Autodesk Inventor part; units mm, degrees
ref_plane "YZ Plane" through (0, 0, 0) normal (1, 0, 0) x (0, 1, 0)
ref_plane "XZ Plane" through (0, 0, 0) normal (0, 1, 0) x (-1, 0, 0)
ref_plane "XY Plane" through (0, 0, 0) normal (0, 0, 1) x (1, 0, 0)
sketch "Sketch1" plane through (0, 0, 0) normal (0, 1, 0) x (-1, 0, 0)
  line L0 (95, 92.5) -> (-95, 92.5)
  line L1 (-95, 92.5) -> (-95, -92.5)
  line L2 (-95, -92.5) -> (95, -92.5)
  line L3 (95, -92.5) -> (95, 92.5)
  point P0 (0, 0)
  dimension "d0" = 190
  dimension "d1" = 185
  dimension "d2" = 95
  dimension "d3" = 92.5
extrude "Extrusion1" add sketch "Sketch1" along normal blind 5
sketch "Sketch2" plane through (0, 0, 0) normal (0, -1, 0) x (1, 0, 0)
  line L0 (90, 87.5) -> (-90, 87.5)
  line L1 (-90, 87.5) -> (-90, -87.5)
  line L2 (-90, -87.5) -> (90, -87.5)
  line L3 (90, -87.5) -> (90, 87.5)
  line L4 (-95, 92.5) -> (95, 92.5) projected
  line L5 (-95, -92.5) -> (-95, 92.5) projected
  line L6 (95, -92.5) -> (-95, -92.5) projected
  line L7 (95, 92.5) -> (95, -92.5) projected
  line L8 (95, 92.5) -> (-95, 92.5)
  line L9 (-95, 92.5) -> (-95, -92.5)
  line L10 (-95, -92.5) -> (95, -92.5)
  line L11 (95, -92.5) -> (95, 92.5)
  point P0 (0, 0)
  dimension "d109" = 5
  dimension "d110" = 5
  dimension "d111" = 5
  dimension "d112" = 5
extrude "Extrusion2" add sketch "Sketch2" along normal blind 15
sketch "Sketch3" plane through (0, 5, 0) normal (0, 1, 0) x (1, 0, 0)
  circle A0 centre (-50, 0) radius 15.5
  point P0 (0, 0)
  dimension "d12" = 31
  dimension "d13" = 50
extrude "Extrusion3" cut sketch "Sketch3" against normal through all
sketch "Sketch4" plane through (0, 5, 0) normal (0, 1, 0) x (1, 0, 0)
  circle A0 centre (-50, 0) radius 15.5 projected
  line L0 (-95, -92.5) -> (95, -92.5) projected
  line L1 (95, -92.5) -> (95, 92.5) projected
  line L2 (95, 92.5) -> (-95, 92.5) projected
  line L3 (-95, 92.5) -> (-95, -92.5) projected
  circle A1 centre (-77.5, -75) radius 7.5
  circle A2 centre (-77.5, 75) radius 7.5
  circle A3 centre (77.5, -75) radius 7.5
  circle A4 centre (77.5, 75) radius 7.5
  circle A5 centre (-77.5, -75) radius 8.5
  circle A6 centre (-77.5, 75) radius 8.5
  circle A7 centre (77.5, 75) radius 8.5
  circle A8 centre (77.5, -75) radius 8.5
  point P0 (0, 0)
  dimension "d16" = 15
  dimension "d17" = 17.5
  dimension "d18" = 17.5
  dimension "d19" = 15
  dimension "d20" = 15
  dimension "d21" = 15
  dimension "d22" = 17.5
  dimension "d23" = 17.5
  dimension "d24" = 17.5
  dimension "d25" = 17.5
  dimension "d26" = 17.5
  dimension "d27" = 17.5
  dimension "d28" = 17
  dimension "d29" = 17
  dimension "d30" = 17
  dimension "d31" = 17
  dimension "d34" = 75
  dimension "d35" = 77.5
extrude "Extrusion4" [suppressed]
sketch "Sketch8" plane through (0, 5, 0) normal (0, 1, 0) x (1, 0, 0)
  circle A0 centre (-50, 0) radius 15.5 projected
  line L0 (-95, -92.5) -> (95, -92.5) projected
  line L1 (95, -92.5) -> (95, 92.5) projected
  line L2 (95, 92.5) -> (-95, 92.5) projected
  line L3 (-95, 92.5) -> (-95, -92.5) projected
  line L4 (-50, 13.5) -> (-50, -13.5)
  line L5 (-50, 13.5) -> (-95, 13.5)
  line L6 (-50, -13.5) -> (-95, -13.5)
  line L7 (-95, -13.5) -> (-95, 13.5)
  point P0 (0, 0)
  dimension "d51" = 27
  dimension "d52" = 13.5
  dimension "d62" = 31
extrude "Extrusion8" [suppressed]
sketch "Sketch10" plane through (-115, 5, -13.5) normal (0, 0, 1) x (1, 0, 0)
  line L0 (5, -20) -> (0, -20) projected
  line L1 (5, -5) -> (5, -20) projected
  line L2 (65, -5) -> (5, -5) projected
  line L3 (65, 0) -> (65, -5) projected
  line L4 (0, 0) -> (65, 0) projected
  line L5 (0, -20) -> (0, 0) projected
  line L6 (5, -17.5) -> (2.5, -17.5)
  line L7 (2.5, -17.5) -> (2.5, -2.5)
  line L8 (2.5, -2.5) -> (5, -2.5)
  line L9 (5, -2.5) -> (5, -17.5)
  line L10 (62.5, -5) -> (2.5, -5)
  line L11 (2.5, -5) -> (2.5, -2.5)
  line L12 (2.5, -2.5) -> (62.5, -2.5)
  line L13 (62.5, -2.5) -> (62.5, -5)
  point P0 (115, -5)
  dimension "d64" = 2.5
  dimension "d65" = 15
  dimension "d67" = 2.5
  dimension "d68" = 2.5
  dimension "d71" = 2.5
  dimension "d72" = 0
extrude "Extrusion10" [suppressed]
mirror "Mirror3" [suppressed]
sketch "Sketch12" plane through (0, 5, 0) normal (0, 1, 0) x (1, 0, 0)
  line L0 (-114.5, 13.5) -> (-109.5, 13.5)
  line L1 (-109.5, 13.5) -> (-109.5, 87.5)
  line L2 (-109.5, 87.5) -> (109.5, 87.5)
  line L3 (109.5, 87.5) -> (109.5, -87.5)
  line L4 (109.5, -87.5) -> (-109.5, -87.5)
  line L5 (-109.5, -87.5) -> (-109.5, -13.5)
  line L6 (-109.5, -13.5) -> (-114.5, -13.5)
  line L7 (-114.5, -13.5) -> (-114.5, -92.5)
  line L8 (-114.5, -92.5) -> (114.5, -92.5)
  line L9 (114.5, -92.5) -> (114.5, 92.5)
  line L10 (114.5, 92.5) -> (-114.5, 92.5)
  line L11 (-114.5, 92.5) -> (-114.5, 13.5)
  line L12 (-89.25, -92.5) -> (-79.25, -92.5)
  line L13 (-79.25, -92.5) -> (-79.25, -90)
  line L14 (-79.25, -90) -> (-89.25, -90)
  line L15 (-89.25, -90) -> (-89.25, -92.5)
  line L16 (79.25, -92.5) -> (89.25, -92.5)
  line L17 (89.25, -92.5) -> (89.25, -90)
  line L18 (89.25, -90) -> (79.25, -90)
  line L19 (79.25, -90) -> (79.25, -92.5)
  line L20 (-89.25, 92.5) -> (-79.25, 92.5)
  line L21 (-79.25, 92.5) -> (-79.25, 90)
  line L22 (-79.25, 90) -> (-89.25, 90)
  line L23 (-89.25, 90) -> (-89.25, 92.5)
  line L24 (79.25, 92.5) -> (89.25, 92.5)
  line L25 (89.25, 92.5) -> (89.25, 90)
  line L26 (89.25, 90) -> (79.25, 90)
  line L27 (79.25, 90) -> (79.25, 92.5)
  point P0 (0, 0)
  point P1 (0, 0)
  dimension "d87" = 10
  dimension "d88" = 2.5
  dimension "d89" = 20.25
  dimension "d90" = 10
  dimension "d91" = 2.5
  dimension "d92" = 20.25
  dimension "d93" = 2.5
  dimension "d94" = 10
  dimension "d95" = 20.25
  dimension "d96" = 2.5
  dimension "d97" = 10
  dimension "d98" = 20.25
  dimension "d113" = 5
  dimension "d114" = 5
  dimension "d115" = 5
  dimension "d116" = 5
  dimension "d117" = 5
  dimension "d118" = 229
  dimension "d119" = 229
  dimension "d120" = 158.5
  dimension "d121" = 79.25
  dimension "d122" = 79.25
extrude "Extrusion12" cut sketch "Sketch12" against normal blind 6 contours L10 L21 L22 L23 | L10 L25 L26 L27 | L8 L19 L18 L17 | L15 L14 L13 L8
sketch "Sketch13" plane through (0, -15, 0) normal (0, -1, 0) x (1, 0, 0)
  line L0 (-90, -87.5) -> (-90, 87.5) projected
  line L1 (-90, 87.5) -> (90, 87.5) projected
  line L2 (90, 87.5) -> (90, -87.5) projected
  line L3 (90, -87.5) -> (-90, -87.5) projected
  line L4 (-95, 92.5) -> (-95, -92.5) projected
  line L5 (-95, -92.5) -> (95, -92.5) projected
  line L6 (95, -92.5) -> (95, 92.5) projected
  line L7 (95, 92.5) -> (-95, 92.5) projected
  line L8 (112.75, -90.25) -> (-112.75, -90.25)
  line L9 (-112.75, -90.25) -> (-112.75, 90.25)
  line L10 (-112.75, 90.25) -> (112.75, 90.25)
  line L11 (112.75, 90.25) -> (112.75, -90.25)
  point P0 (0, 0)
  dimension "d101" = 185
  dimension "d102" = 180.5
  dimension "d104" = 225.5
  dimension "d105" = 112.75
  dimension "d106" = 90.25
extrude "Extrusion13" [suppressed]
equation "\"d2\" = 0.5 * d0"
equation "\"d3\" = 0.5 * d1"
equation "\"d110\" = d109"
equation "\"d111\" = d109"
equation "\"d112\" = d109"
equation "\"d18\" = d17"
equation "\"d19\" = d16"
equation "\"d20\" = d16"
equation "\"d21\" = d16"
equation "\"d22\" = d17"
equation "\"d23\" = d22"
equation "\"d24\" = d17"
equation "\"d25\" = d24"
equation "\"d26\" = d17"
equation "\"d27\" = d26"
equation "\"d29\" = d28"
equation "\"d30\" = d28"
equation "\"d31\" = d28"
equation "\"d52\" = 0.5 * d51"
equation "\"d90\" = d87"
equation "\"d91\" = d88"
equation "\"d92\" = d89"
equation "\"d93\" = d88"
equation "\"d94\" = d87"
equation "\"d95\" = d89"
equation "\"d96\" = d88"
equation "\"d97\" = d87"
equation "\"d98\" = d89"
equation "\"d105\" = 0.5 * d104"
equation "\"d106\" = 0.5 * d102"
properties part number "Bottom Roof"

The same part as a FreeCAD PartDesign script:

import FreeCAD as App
import Part
import Sketcher
Q = App.Units.Quantity

doc = App.newDocument("Part")
body = doc.addObject("PartDesign::Body", "Body")

sketch1 = body.newObject("Sketcher::SketchObject", "Sketch")
sketch1.AttachmentSupport = (doc.getObject("XZ_Plane"), [""])
sketch1.MapMode = "FlatFace"
sketch1.addGeometry(Part.LineSegment(App.Vector(-95, -92.5, 0), App.Vector(-95, 92.5, 0)), False)
sketch1.addGeometry(Part.LineSegment(App.Vector(-95, 92.5, 0), App.Vector(95, 92.5, 0)), False)
sketch1.addGeometry(Part.LineSegment(App.Vector(95, 92.5, 0), App.Vector(95, -92.5, 0)), False)
sketch1.addGeometry(Part.LineSegment(App.Vector(95, -92.5, 0), App.Vector(-95, -92.5, 0)), False)
sketch1.addConstraint(Sketcher.Constraint("Coincident", 0, 2, 1, 1))
sketch1.addConstraint(Sketcher.Constraint("Coincident", 1, 2, 2, 1))
sketch1.addConstraint(Sketcher.Constraint("Coincident", 2, 2, 3, 1))
sketch1.addConstraint(Sketcher.Constraint("Coincident", 3, 2, 0, 1))
sketch1.addConstraint(Sketcher.Constraint("Vertical", 0))
sketch1.addConstraint(Sketcher.Constraint("Horizontal", 1))
sketch1.addConstraint(Sketcher.Constraint("Vertical", 2))
sketch1.addConstraint(Sketcher.Constraint("Horizontal", 3))
sketch1.addConstraint(Sketcher.Constraint("Symmetric", 0, 2, 2, 2, -1, 1))
sketch1.addConstraint(Sketcher.Constraint("DistanceX", 1, 1, 1, 2, Q("190 mm")))
sketch1.addConstraint(Sketcher.Constraint("DistanceY", 0, 1, 0, 2, Q("185 mm")))
pad1 = body.newObject("PartDesign::Pad", "Pad")
pad1.Profile = sketch1
pad1.Length = 5
pad1.Reversed = True

sketch2 = body.newObject("Sketcher::SketchObject", "Sketch001")
sketch2.AttachmentSupport = (doc.getObject("XZ_Plane"), [""])
sketch2.MapMode = "FlatFace"
sketch2.addGeometry(Part.LineSegment(App.Vector(95, 92.5, 0), App.Vector(-95, 92.5, 0)), False)
sketch2.addGeometry(Part.LineSegment(App.Vector(-95, 92.5, 0), App.Vector(-95, -92.5, 0)), False)
sketch2.addGeometry(Part.LineSegment(App.Vector(-95, -92.5, 0), App.Vector(95, -92.5, 0)), False)
sketch2.addGeometry(Part.LineSegment(App.Vector(95, -92.5, 0), App.Vector(95, 92.5, 0)), False)
sketch2.addGeometry(Part.LineSegment(App.Vector(-90, 87.5, 0), App.Vector(90, 87.5, 0)), False)
sketch2.addGeometry(Part.LineSegment(App.Vector(90, 87.5, 0), App.Vector(90, -87.5, 0)), False)
sketch2.addGeometry(Part.LineSegment(App.Vector(90, -87.5, 0), App.Vector(-90, -87.5, 0)), False)
sketch2.addGeometry(Part.LineSegment(App.Vector(-90, -87.5, 0), App.Vector(-90, 87.5, 0)), False)
sketch2.addConstraint(Sketcher.Constraint("Coincident", 0, 2, 1, 1))
sketch2.addConstraint(Sketcher.Constraint("Coincident", 1, 2, 2, 1))
sketch2.addConstraint(Sketcher.Constraint("Coincident", 2, 2, 3, 1))
sketch2.addConstraint(Sketcher.Constraint("Coincident", 3, 2, 0, 1))
sketch2.addConstraint(Sketcher.Constraint("Coincident", 4, 2, 5, 1))
sketch2.addConstraint(Sketcher.Constraint("Coincident", 5, 2, 6, 1))
sketch2.addConstraint(Sketcher.Constraint("Coincident", 6, 2, 7, 1))
sketch2.addConstraint(Sketcher.Constraint("Coincident", 7, 2, 4, 1))
sketch2.addConstraint(Sketcher.Constraint("Horizontal", 0))
sketch2.addConstraint(Sketcher.Constraint("Vertical", 1))
sketch2.addConstraint(Sketcher.Constraint("Horizontal", 2))
sketch2.addConstraint(Sketcher.Constraint("Vertical", 3))
sketch2.addConstraint(Sketcher.Constraint("Horizontal", 4))
sketch2.addConstraint(Sketcher.Constraint("Vertical", 5))
sketch2.addConstraint(Sketcher.Constraint("Horizontal", 6))
sketch2.addConstraint(Sketcher.Constraint("Vertical", 7))
sketch2.addConstraint(Sketcher.Constraint("Symmetric", 0, 2, 2, 2, -1, 1))
sketch2.addConstraint(Sketcher.Constraint("Symmetric", 4, 2, 6, 2, -1, 1))
sketch2.addConstraint(Sketcher.Constraint("DistanceX", 4, 2, 3, 2, Q("5 mm")))
sketch2.addConstraint(Sketcher.Constraint("DistanceY", 4, 2, 3, 2, Q("5 mm")))
sketch2.addConstraint(Sketcher.Constraint("DistanceX", 0, 2, 0, 1, Q("190 mm")))
sketch2.addConstraint(Sketcher.Constraint("DistanceY", 1, 2, 1, 1, Q("185 mm")))
pad2 = body.newObject("PartDesign::Pad", "Pad001")
pad2.Profile = sketch2
pad2.Length = 15

sketch3 = body.newObject("Sketcher::SketchObject", "Sketch002")
sketch3.AttachmentSupport = (doc.getObject("XZ_Plane"), [""])
sketch3.MapMode = "FlatFace"
sketch3.AttachmentOffset = App.Placement(App.Vector(0, 0, -5), App.Rotation())
sketch3.addGeometry(Part.Circle(App.Vector(-50, 0, 0), App.Vector(0, 0, 1), 15.5), False)
sketch3.addConstraint(Sketcher.Constraint("PointOnObject", 0, 3, -1))
sketch3.addConstraint(Sketcher.Constraint("Diameter", 0, Q("31 mm")))
sketch3.addConstraint(Sketcher.Constraint("DistanceX", 0, 3, -1, 1, Q("50 mm")))
pocket1 = body.newObject("PartDesign::Pocket", "Pocket")
pocket1.Profile = sketch3
pocket1.Type = "ThroughAll"
pocket1.Reversed = True

sketch4 = body.newObject("Sketcher::SketchObject", "Sketch003")
sketch4.AttachmentSupport = (doc.getObject("XZ_Plane"), [""])
sketch4.MapMode = "FlatFace"
sketch4.AttachmentOffset = App.Placement(App.Vector(0, 0, -5), App.Rotation())
sketch4.addGeometry(Part.LineSegment(App.Vector(-79.25, -92.5, 0), App.Vector(-89.25, -92.5, 0)), False)
sketch4.addGeometry(Part.LineSegment(App.Vector(-89.25, -92.5, 0), App.Vector(-89.25, -90, 0)), False)
sketch4.addGeometry(Part.LineSegment(App.Vector(-89.25, -90, 0), App.Vector(-79.25, -90, 0)), False)
sketch4.addGeometry(Part.LineSegment(App.Vector(-79.25, -90, 0), App.Vector(-79.25, -92.5, 0)), False)
sketch4.addGeometry(Part.LineSegment(App.Vector(89.25, -92.5, 0), App.Vector(79.25, -92.5, 0)), False)
sketch4.addGeometry(Part.LineSegment(App.Vector(79.25, -92.5, 0), App.Vector(79.25, -90, 0)), False)
sketch4.addGeometry(Part.LineSegment(App.Vector(79.25, -90, 0), App.Vector(89.25, -90, 0)), False)
sketch4.addGeometry(Part.LineSegment(App.Vector(89.25, -90, 0), App.Vector(89.25, -92.5, 0)), False)
sketch4.addGeometry(Part.LineSegment(App.Vector(79.25, 92.5, 0), App.Vector(89.25, 92.5, 0)), False)
sketch4.addGeometry(Part.LineSegment(App.Vector(89.25, 92.5, 0), App.Vector(89.25, 90, 0)), False)
sketch4.addGeometry(Part.LineSegment(App.Vector(89.25, 90, 0), App.Vector(79.25, 90, 0)), False)
sketch4.addGeometry(Part.LineSegment(App.Vector(79.25, 90, 0), App.Vector(79.25, 92.5, 0)), False)
sketch4.addGeometry(Part.LineSegment(App.Vector(-89.25, 90, 0), App.Vector(-89.25, 92.5, 0)), False)
sketch4.addGeometry(Part.LineSegment(App.Vector(-89.25, 92.5, 0), App.Vector(-79.25, 92.5, 0)), False)
sketch4.addGeometry(Part.LineSegment(App.Vector(-79.25, 92.5, 0), App.Vector(-79.25, 90, 0)), False)
sketch4.addGeometry(Part.LineSegment(App.Vector(-79.25, 90, 0), App.Vector(-89.25, 90, 0)), False)
sketch4.addConstraint(Sketcher.Constraint("Coincident", 0, 2, 1, 1))
sketch4.addConstraint(Sketcher.Constraint("Coincident", 1, 2, 2, 1))
sketch4.addConstraint(Sketcher.Constraint("Coincident", 2, 2, 3, 1))
sketch4.addConstraint(Sketcher.Constraint("Coincident", 3, 2, 0, 1))
sketch4.addConstraint(Sketcher.Constraint("Coincident", 4, 2, 5, 1))
sketch4.addConstraint(Sketcher.Constraint("Coincident", 5, 2, 6, 1))
sketch4.addConstraint(Sketcher.Constraint("Coincident", 6, 2, 7, 1))
sketch4.addConstraint(Sketcher.Constraint("Coincident", 7, 2, 4, 1))
sketch4.addConstraint(Sketcher.Constraint("Coincident", 8, 2, 9, 1))
sketch4.addConstraint(Sketcher.Constraint("Coincident", 9, 2, 10, 1))
sketch4.addConstraint(Sketcher.Constraint("Coincident", 10, 2, 11, 1))
sketch4.addConstraint(Sketcher.Constraint("Coincident", 11, 2, 8, 1))
sketch4.addConstraint(Sketcher.Constraint("Coincident", 12, 2, 13, 1))
sketch4.addConstraint(Sketcher.Constraint("Coincident", 13, 2, 14, 1))
sketch4.addConstraint(Sketcher.Constraint("Coincident", 14, 2, 15, 1))
sketch4.addConstraint(Sketcher.Constraint("Coincident", 15, 2, 12, 1))
sketch4.addConstraint(Sketcher.Constraint("Horizontal", 0))
sketch4.addConstraint(Sketcher.Constraint("Vertical", 1))
sketch4.addConstraint(Sketcher.Constraint("Horizontal", 2))
sketch4.addConstraint(Sketcher.Constraint("Vertical", 3))
sketch4.addConstraint(Sketcher.Constraint("Horizontal", 4))
sketch4.addConstraint(Sketcher.Constraint("Vertical", 5))
sketch4.addConstraint(Sketcher.Constraint("Horizontal", 6))
sketch4.addConstraint(Sketcher.Constraint("Vertical", 7))
sketch4.addConstraint(Sketcher.Constraint("Horizontal", 8))
sketch4.addConstraint(Sketcher.Constraint("Vertical", 9))
sketch4.addConstraint(Sketcher.Constraint("Horizontal", 10))
sketch4.addConstraint(Sketcher.Constraint("Vertical", 11))
sketch4.addConstraint(Sketcher.Constraint("Vertical", 12))
sketch4.addConstraint(Sketcher.Constraint("Horizontal", 13))
sketch4.addConstraint(Sketcher.Constraint("Vertical", 14))
sketch4.addConstraint(Sketcher.Constraint("Horizontal", 15))
sketch4.addConstraint(Sketcher.Constraint("Symmetric", 0, 2, 8, 2, -1, 1))
sketch4.addConstraint(Sketcher.Constraint("Symmetric", 2, 2, 10, 2, -1, 1))
sketch4.addConstraint(Sketcher.Constraint("Symmetric", 7, 2, 12, 2, -1, 1))
sketch4.addConstraint(Sketcher.Constraint("Symmetric", 5, 2, 14, 2, -1, 1))
sketch4.addConstraint(Sketcher.Constraint("Symmetric", 3, 2, 4, 2, -2))
sketch4.addConstraint(Sketcher.Constraint("Symmetric", 1, 2, 6, 2, -2))
sketch4.addConstraint(Sketcher.Constraint("DistanceX", 0, 2, 0, 1, Q("10 mm")))
sketch4.addConstraint(Sketcher.Constraint("DistanceY", 1, 1, 1, 2, Q("2.5 mm")))
sketch4.addConstraint(Sketcher.Constraint("DistanceX", 3, 2, 4, 2, Q("158.5 mm")))
sketch4.addConstraint(Sketcher.Constraint("DistanceY", 1, 2, -1, 1, Q("90 mm")))
pocket2 = body.newObject("PartDesign::Pocket", "Pocket001")
pocket2.Profile = sketch4
pocket2.Length = 6
pocket2.Reversed = True

doc.recompute()
